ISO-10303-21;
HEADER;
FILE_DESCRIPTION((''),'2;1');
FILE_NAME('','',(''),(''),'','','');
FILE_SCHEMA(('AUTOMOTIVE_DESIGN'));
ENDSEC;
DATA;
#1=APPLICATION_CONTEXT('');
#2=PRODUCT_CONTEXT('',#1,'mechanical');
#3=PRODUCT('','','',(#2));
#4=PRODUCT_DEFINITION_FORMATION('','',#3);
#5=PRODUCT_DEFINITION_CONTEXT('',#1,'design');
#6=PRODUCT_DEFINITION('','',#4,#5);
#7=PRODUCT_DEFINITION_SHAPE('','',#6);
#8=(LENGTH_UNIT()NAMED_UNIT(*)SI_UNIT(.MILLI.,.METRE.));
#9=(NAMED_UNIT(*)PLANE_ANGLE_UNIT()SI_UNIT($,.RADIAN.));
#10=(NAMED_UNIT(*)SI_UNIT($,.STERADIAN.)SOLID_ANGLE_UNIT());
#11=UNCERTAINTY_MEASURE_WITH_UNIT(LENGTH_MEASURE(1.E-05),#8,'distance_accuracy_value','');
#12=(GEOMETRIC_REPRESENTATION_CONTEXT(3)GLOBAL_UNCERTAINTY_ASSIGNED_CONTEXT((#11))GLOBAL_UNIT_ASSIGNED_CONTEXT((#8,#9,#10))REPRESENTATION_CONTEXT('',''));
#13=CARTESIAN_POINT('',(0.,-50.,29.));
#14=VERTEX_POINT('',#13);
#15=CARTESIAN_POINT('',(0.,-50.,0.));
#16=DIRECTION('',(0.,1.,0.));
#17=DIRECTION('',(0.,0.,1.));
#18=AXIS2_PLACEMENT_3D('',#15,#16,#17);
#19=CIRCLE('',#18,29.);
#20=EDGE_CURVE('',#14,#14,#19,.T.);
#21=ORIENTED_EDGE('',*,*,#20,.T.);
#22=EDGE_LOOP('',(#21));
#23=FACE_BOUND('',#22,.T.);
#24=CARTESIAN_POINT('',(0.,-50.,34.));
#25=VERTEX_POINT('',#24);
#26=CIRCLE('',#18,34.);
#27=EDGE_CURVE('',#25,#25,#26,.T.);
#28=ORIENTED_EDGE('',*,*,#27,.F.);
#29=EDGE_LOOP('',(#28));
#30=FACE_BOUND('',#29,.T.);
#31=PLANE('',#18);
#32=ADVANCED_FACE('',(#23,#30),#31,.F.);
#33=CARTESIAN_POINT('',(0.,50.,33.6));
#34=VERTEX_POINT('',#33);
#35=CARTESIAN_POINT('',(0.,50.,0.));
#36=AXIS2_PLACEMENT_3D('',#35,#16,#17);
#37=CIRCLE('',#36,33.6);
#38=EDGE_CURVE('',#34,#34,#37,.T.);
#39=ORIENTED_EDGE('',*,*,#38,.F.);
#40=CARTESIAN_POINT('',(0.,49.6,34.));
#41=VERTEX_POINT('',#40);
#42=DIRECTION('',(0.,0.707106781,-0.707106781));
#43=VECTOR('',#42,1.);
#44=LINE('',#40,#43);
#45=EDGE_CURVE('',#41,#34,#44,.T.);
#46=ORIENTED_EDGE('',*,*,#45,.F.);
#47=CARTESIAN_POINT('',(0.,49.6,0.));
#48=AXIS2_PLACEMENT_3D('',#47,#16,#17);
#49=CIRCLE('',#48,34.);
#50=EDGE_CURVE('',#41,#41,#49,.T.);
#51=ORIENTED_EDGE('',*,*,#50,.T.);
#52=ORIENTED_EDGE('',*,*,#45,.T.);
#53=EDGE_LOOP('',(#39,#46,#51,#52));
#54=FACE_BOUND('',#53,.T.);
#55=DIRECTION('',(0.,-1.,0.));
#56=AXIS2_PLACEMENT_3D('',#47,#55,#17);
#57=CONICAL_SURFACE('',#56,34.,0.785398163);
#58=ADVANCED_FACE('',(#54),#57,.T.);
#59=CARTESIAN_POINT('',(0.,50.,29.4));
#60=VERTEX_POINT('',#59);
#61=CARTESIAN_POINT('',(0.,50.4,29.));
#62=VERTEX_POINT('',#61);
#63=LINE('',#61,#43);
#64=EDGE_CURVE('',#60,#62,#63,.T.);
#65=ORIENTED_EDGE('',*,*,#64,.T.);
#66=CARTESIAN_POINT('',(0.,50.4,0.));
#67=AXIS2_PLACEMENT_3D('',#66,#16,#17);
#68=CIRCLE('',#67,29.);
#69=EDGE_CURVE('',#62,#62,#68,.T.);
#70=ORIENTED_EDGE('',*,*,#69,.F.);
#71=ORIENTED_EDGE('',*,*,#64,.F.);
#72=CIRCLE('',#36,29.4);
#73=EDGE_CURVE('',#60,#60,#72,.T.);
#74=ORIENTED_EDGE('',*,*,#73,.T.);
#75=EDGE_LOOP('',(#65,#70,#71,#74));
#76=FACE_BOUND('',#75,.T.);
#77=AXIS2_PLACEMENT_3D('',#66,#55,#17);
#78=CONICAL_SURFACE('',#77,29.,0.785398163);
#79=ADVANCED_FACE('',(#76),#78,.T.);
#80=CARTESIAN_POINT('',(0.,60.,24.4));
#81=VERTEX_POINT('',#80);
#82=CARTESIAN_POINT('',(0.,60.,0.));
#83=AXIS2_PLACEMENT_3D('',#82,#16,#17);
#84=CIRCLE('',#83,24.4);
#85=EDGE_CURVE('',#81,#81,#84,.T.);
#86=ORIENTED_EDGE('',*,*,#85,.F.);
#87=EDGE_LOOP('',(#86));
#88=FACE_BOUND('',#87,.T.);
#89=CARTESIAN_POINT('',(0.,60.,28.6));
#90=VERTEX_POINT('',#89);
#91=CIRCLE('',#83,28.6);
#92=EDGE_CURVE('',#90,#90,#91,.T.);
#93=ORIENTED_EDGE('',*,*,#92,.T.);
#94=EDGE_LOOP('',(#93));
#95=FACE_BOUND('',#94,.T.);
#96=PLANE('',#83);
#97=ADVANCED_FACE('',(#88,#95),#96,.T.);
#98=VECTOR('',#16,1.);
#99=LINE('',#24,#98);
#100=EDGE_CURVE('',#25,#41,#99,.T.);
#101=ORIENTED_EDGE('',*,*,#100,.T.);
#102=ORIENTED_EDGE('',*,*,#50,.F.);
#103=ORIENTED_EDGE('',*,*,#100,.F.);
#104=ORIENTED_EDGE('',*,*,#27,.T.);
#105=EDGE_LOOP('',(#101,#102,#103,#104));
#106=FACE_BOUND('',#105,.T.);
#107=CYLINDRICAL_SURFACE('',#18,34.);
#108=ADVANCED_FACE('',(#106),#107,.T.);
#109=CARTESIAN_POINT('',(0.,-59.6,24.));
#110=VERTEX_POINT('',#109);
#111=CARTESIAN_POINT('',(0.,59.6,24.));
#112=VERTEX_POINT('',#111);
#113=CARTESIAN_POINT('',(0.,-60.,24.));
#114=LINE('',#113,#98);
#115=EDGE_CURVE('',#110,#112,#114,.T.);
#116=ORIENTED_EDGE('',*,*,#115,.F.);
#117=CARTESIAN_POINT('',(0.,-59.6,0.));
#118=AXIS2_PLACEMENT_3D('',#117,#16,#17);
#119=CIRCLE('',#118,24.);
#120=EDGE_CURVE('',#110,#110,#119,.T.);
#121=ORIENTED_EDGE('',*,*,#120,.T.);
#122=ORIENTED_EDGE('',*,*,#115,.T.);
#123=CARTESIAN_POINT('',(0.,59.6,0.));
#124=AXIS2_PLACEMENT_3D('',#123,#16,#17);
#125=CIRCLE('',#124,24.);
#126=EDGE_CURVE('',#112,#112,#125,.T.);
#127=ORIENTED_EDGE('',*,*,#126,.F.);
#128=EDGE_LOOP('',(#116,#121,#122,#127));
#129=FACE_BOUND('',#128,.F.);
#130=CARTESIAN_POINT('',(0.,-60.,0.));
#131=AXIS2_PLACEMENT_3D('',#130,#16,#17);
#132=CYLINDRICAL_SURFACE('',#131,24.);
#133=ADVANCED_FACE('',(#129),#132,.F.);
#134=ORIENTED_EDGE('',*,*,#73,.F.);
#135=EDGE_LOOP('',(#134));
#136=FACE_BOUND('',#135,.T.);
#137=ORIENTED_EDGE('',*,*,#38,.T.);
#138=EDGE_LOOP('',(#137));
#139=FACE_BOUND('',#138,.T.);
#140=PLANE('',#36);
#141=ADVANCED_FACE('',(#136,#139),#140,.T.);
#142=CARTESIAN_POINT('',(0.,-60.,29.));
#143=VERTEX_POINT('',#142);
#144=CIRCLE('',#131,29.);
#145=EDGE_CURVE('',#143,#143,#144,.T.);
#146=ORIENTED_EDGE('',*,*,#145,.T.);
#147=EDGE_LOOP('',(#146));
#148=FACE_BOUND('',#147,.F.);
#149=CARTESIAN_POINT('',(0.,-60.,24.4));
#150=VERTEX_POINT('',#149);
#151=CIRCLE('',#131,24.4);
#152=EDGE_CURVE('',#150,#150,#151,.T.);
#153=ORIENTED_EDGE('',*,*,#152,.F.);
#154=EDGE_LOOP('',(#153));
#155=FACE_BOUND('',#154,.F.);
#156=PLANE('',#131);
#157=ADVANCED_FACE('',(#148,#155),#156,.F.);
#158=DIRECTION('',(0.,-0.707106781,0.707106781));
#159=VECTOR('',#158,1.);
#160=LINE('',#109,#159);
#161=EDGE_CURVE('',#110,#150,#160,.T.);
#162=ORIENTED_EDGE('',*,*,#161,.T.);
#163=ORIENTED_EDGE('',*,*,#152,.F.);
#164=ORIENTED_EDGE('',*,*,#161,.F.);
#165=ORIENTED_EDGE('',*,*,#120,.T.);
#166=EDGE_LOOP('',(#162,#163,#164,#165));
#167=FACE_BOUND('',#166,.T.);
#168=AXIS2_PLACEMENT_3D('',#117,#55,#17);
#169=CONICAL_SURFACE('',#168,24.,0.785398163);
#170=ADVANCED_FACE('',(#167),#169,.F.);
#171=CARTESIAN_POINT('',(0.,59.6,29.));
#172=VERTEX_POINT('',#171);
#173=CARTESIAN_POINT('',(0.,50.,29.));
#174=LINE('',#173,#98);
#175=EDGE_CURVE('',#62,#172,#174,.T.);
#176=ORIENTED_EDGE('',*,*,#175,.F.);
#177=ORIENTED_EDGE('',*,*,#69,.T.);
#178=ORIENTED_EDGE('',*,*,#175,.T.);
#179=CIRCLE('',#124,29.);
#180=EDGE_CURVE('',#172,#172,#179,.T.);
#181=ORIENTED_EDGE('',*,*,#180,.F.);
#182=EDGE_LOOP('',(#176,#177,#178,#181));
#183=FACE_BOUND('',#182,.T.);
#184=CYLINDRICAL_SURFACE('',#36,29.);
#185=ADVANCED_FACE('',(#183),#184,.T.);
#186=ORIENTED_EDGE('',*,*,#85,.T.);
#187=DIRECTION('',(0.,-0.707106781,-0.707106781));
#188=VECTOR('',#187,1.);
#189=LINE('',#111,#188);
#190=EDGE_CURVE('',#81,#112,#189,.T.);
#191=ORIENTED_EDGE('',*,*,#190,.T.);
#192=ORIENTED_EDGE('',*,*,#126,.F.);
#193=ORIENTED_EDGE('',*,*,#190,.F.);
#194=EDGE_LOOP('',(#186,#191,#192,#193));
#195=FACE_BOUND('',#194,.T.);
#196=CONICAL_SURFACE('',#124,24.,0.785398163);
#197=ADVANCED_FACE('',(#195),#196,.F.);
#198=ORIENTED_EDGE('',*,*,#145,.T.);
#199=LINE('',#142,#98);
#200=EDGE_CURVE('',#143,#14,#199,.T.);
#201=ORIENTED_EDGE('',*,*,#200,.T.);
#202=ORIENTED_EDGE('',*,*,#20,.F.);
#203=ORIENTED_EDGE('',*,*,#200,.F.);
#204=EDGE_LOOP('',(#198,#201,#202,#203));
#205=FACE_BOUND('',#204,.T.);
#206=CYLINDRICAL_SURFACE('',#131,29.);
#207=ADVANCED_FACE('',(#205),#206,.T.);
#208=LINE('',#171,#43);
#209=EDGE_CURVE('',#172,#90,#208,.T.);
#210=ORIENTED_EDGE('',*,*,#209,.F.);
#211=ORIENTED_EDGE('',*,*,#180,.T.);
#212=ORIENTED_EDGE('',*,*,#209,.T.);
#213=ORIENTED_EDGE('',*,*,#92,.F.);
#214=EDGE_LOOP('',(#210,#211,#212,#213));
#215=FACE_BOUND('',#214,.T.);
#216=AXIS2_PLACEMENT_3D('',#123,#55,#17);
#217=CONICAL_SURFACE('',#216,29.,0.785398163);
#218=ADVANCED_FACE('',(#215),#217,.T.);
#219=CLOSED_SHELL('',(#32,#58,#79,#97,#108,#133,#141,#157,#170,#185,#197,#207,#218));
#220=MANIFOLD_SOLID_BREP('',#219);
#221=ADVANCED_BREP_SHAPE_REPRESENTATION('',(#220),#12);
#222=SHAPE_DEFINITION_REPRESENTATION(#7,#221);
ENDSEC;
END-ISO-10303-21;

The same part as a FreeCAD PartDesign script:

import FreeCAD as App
import Part
import Sketcher

V = App.Vector
Q = App.Units.Quantity


def edges_at(feature, points):
    """Names of the edges that pass closest to the given points."""
    edges = feature.Shape.Edges
    near = lambda p: min(range(len(edges)), key=lambda i: edges[i].distToShape(Part.Vertex(*p))[0])
    return sorted({f"Edge{near(p) + 1}" for p in points})

doc = App.newDocument("Part")
body = doc.addObject("PartDesign::Body", "Body")

sketch1 = doc.addObject("Sketcher::SketchObject", "Sketch")
body.addObject(sketch1)
sketch1.AttachmentSupport = (doc.YZ_Plane, [""])
sketch1.MapMode = "FlatFace"
sketch1.addGeometry(Part.LineSegment(V(-50, 29, 0), V(-60, 29, 0)), False)
sketch1.addGeometry(Part.LineSegment(V(-60, 29, 0), V(-60, 24, 0)), False)
sketch1.addGeometry(Part.LineSegment(V(-60, 24, 0), V(60, 24, 0)), False)
sketch1.addGeometry(Part.LineSegment(V(60, 24, 0), V(60, 29, 0)), False)
sketch1.addGeometry(Part.LineSegment(V(60, 29, 0), V(50, 29, 0)), False)
sketch1.addGeometry(Part.LineSegment(V(50, 29, 0), V(50, 34, 0)), False)
sketch1.addGeometry(Part.LineSegment(V(50, 34, 0), V(-50, 34, 0)), False)
sketch1.addGeometry(Part.LineSegment(V(-50, 34, 0), V(-50, 29, 0)), False)
sketch1.addConstraint(Sketcher.Constraint("Coincident", 0, 2, 1, 1))
sketch1.addConstraint(Sketcher.Constraint("Coincident", 1, 2, 2, 1))
sketch1.addConstraint(Sketcher.Constraint("Coincident", 2, 2, 3, 1))
sketch1.addConstraint(Sketcher.Constraint("Coincident", 3, 2, 4, 1))
sketch1.addConstraint(Sketcher.Constraint("Coincident", 4, 2, 5, 1))
sketch1.addConstraint(Sketcher.Constraint("Coincident", 5, 2, 6, 1))
sketch1.addConstraint(Sketcher.Constraint("Coincident", 6, 2, 7, 1))
sketch1.addConstraint(Sketcher.Constraint("Coincident", 7, 2, 0, 1))
sketch1.addConstraint(Sketcher.Constraint("Horizontal", 0))
sketch1.addConstraint(Sketcher.Constraint("Vertical", 1))
sketch1.addConstraint(Sketcher.Constraint("Horizontal", 2))
sketch1.addConstraint(Sketcher.Constraint("Vertical", 3))
sketch1.addConstraint(Sketcher.Constraint("Horizontal", 4))
sketch1.addConstraint(Sketcher.Constraint("Vertical", 5))
sketch1.addConstraint(Sketcher.Constraint("Horizontal", 6))
sketch1.addConstraint(Sketcher.Constraint("Vertical", 7))
sketch1.addConstraint(Sketcher.Constraint("Symmetric", 0, 2, 3, 2, -2))
sketch1.addConstraint(Sketcher.Constraint("Equal", 0, 4))
sketch1.addConstraint(Sketcher.Constraint("Equal", 3, 5))
sketch1.addConstraint(Sketcher.Constraint("DistanceX", 2, 1, 2, 2, Q("120 mm")))
sketch1.addConstraint(Sketcher.Constraint("DistanceX", 6, 2, 6, 1, Q("100 mm")))
sketch1.addConstraint(Sketcher.Constraint("DistanceY", 1, 2, 1, 1, Q("5 mm")))
sketch1.addConstraint(Sketcher.Constraint("DistanceY", -1, 1, 0, 2, Q("29 mm")))
revolution = doc.addObject("PartDesign::Revolution", "Revolution")
body.addObject(revolution)
revolution.Profile = sketch1
revolution.ReferenceAxis = (sketch1, ["H_Axis"])
revolution.Angle = 360
doc.recompute()

chamfer = doc.addObject("PartDesign::Chamfer", "Chamfer")
body.addObject(chamfer)
chamfer.Base = (revolution, edges_at(revolution, [
    (0, -60, -24),
    (0, 60, -24),
    (0, 60, -29),
    (0, 50, -29),
    (0, 50, -34),
]))
chamfer.Size = 0.4

doc.recompute()
